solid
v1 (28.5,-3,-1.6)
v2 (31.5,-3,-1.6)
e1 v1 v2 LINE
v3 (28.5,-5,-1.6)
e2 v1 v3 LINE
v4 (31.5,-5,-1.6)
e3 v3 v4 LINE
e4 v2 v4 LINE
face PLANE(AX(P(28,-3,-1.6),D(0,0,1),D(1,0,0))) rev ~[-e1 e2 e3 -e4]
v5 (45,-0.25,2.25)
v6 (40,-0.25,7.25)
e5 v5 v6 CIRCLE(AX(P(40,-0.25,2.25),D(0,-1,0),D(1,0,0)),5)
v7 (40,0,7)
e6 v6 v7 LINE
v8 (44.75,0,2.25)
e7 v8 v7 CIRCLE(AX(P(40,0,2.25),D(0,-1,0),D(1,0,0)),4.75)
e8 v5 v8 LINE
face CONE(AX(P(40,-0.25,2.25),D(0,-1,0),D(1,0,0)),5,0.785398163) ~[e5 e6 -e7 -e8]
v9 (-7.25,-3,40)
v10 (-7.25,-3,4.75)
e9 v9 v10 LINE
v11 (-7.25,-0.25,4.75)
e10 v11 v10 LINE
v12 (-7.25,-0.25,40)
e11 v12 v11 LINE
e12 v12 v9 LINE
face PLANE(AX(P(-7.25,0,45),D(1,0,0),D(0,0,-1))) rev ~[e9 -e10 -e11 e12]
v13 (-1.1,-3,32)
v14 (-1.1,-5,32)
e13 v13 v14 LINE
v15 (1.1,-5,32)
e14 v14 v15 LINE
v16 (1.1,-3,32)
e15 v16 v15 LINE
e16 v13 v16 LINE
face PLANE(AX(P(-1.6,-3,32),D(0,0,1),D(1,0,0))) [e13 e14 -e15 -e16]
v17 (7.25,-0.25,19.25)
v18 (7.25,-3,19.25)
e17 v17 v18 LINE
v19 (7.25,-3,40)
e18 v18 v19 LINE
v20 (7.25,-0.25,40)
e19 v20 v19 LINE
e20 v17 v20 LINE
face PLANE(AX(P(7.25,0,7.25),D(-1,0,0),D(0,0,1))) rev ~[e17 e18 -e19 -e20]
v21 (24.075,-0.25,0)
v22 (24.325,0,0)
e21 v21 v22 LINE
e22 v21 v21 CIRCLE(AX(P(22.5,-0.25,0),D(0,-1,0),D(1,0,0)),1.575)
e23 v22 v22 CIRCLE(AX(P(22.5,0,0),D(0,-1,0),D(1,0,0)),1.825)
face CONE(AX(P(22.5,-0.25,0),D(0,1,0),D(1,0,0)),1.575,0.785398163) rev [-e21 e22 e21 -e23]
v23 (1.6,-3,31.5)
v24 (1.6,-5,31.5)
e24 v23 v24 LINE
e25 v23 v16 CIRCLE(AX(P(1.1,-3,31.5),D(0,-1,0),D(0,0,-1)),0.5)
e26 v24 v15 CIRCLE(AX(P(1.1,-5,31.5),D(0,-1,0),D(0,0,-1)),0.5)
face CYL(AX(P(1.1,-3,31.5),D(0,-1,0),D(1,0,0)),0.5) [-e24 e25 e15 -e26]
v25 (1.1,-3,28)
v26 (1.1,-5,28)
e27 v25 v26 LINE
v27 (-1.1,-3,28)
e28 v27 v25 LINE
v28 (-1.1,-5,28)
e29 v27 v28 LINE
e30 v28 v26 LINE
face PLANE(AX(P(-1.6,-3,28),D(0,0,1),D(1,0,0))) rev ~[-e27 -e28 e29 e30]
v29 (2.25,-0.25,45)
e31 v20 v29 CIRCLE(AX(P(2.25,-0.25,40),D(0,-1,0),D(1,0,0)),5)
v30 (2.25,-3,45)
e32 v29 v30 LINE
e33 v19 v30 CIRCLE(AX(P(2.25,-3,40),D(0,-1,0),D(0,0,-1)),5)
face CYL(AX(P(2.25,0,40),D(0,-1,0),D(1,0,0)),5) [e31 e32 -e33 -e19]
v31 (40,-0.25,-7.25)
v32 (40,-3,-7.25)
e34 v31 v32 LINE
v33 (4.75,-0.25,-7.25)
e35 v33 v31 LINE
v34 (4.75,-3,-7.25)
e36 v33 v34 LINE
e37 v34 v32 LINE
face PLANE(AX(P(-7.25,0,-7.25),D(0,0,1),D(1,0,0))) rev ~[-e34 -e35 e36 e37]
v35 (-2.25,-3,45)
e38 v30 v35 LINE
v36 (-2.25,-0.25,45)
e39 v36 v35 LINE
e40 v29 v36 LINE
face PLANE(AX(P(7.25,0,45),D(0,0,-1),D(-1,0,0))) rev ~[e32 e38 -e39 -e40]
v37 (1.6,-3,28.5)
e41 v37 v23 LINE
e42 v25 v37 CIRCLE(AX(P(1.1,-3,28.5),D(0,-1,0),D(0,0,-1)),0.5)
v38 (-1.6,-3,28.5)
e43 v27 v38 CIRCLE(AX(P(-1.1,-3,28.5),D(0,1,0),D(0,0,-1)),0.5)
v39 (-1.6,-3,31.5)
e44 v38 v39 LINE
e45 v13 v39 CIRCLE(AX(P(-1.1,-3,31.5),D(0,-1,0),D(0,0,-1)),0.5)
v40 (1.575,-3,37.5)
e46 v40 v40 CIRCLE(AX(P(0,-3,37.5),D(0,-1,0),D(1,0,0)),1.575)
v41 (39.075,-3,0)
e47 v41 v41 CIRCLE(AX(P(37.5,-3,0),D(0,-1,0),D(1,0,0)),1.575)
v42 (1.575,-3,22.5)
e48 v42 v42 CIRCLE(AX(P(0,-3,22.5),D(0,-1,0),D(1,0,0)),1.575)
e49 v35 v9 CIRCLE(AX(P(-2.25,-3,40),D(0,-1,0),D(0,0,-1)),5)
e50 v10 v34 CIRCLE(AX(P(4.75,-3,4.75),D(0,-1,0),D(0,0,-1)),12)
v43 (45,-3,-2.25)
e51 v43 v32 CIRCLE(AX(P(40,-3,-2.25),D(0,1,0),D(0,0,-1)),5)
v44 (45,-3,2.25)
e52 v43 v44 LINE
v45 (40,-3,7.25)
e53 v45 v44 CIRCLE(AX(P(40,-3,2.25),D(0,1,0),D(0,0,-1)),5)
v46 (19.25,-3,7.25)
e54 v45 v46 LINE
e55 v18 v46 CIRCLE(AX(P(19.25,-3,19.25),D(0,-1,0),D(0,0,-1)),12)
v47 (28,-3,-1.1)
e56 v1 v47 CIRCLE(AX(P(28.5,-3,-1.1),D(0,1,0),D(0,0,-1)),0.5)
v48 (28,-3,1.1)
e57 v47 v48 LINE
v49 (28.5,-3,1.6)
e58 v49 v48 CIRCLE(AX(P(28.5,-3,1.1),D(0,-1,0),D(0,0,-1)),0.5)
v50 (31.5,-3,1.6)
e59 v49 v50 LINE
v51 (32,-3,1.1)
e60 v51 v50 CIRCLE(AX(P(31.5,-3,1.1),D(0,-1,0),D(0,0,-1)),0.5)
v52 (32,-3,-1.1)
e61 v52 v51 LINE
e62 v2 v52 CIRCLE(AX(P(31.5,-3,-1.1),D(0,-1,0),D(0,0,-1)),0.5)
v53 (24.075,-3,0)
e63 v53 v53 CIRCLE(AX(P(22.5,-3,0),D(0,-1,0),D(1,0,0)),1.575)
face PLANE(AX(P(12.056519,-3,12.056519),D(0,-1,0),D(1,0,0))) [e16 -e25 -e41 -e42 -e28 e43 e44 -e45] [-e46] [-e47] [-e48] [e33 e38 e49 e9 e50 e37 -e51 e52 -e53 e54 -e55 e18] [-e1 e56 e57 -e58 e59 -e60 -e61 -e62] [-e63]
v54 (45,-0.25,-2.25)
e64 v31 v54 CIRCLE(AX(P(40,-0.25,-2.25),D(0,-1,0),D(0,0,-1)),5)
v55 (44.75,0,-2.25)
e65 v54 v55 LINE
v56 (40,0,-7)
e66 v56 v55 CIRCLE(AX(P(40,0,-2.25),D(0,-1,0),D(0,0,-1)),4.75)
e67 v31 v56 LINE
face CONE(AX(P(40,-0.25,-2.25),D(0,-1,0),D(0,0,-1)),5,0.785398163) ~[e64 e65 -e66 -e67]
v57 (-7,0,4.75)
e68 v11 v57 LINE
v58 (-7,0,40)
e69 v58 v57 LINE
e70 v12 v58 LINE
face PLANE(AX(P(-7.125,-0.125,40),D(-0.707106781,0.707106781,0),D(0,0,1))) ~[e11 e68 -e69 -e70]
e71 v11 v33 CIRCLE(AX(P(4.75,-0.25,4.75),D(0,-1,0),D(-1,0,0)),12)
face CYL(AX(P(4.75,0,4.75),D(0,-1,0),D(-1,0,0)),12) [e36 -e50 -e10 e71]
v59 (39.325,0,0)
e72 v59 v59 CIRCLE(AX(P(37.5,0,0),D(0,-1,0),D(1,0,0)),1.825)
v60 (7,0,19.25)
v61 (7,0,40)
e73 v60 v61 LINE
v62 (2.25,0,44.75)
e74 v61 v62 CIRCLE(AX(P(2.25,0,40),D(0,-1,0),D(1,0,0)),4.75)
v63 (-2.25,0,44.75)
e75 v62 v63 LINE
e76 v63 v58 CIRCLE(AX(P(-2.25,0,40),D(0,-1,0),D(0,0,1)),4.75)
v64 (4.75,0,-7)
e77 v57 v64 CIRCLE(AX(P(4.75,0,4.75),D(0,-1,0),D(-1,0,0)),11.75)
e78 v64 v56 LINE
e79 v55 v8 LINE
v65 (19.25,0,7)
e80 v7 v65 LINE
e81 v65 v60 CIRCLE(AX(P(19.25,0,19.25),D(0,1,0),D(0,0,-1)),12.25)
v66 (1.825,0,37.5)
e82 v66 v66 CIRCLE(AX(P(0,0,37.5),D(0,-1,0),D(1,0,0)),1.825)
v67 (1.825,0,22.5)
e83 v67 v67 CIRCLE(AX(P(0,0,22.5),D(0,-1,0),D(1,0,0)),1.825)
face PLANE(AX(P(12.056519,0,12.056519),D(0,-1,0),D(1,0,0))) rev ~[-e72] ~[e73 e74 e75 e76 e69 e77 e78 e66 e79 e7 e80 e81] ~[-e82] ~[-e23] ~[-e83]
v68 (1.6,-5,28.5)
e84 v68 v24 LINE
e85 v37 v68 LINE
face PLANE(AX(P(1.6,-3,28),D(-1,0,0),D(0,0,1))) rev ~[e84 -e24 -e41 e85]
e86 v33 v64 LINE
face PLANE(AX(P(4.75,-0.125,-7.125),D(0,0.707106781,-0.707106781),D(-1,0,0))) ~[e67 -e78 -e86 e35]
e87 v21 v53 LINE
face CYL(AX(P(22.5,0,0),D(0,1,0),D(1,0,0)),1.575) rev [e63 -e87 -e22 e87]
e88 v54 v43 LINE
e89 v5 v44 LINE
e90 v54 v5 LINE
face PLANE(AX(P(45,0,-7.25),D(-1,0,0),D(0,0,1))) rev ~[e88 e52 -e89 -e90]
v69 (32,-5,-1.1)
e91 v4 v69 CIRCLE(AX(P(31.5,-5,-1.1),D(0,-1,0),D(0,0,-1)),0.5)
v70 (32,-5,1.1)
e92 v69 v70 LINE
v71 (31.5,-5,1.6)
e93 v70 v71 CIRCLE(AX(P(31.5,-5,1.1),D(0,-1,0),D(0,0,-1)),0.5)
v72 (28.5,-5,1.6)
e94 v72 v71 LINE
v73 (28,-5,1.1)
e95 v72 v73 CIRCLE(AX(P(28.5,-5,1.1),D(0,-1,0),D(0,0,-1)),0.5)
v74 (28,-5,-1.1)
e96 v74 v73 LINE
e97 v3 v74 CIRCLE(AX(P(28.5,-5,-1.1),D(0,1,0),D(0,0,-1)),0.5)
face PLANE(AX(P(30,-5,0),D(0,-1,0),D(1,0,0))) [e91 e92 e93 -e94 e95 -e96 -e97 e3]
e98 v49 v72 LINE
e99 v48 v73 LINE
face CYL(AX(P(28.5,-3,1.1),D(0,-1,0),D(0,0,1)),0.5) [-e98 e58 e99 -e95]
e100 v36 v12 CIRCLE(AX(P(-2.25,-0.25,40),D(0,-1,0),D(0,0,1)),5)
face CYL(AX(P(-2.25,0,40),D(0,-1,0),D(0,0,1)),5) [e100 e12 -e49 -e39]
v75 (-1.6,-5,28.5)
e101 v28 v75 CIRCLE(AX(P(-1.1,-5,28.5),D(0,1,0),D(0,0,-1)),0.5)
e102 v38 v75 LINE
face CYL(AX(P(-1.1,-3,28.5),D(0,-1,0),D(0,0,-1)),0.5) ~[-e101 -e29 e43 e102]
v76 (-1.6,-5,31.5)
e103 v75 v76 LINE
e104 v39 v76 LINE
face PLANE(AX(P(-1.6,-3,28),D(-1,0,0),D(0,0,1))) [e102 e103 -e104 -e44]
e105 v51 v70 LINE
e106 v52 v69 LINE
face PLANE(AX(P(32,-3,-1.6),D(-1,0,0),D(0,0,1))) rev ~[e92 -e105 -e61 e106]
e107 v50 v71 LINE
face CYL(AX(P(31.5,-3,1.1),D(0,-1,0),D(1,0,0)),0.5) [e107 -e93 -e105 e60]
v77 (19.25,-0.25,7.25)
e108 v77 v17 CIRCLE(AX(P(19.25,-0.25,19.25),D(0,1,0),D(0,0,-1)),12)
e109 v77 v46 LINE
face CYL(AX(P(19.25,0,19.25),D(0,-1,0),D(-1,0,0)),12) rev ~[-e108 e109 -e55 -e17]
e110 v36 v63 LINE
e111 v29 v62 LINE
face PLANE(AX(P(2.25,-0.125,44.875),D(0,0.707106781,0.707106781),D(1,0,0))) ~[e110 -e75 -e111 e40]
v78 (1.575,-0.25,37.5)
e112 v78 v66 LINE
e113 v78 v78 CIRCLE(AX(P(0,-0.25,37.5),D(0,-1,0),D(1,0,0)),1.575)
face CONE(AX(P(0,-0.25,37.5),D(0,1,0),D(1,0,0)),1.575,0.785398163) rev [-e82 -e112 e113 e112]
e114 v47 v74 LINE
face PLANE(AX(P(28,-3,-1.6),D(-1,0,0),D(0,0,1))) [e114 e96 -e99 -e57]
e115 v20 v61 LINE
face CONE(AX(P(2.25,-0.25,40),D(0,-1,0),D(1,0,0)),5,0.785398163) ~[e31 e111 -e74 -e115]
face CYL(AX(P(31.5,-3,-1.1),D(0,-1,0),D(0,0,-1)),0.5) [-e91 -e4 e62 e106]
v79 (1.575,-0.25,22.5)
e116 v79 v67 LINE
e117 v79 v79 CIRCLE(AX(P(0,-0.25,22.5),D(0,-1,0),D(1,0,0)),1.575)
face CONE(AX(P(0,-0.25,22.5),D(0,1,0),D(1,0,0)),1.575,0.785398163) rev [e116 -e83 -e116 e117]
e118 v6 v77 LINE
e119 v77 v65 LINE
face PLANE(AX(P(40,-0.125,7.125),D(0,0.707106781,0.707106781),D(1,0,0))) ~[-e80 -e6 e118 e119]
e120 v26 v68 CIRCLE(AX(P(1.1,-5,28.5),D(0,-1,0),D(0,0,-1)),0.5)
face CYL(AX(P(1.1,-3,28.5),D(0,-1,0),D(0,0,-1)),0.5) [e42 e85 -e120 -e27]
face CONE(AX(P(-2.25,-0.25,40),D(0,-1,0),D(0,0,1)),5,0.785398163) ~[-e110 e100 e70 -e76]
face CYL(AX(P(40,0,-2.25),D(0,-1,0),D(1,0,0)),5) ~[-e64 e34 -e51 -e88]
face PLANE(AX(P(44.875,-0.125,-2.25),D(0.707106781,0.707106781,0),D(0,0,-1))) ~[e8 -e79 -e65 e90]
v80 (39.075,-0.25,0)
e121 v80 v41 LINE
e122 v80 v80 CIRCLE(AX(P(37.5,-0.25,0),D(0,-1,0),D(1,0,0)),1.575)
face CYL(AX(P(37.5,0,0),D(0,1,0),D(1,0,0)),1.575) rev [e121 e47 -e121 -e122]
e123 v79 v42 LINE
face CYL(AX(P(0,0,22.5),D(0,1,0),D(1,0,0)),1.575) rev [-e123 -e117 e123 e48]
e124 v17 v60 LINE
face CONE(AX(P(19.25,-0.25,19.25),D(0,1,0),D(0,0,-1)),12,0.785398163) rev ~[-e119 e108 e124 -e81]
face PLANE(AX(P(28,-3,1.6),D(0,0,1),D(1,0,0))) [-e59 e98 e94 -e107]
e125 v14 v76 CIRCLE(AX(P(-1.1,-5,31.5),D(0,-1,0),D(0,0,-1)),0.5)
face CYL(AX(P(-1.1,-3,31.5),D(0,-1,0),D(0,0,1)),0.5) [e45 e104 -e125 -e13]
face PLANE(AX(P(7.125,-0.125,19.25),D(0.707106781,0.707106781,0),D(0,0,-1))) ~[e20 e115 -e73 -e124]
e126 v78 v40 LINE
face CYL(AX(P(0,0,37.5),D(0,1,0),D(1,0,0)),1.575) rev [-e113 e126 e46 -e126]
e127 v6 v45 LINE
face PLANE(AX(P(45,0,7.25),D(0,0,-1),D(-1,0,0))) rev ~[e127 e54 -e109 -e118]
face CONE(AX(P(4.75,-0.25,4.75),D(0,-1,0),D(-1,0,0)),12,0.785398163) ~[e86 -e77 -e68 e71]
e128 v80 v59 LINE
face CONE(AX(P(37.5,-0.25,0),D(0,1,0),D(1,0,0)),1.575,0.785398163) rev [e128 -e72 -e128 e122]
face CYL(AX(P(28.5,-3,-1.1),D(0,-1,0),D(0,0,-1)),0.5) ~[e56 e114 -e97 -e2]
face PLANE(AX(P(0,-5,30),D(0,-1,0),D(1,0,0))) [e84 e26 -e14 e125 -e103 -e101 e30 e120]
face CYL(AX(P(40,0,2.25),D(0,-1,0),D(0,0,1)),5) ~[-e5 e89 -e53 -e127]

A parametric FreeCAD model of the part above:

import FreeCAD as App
import Part
import Sketcher

V = App.Vector


def edges_at(feature, points):
    """Names of the edges that pass closest to the given points."""
    edges = feature.Shape.Edges
    near = lambda p: min(range(len(edges)), key=lambda i: edges[i].distToShape(Part.Vertex(*p))[0])
    return sorted({f"Edge{near(p) + 1}" for p in points})


def add_polygon(sketch, points):
    """Adds a closed chain of lines whose ends are joined by coincident constraints."""
    first, n = sketch.GeometryCount, len(points)
    for a, b in zip(points, points[1:] + points[:1]):
        sketch.addGeometry(Part.LineSegment(App.Vector(*a, 0), App.Vector(*b, 0)), False)
    for i in range(n):
        sketch.addConstraint(Sketcher.Constraint("Coincident", first + i, 2, first + (i + 1) % n, 1))

doc = App.newDocument("Part")
body = doc.addObject("PartDesign::Body", "Body")

sketch1 = body.newObject("Sketcher::SketchObject", "Sketch")
sketch1.AttachmentSupport = (doc.getObject("XZ_Plane"), [""])
sketch1.MapMode = "FlatFace"
add_polygon(sketch1, [(7.2, 7.2), (7.2, 45), (-7.2, 45), (-7.2, -7.2), (45, -7.2), (45, 7.2)])
sketch1.addGeometry(Part.Circle(V(22.5, 0, 0), V(0, 0, 1), 1.6), False)
sketch1.addGeometry(Part.Circle(V(37.5, 0, 0), V(0, 0, 1), 1.6), False)
sketch1.addGeometry(Part.Circle(V(0, 22.5, 0), V(0, 0, 1), 1.6), False)
sketch1.addGeometry(Part.Circle(V(0, 37.5, 0), V(0, 0, 1), 1.6), False)
sketch1.addConstraint([
    Sketcher.Constraint("Vertical", 0),
    Sketcher.Constraint("Horizontal", 1),
    Sketcher.Constraint("Vertical", 2),
    Sketcher.Constraint("Horizontal", 3),
    Sketcher.Constraint("Vertical", 4),
    Sketcher.Constraint("Horizontal", 5),
    Sketcher.Constraint("Equal", 6, 7),
    Sketcher.Constraint("Equal", 7, 8),
    Sketcher.Constraint("Equal", 8, 9),
    Sketcher.Constraint("Symmetric", 2, 2, 5, 2, -1, 1),
    Sketcher.Constraint("PointOnObject", 6, 3, -1),
    Sketcher.Constraint("PointOnObject", 7, 3, -1),
    Sketcher.Constraint("PointOnObject", 8, 3, -2),
    Sketcher.Constraint("PointOnObject", 9, 3, -2),
    Sketcher.Constraint("Equal", 5, 0),
    Sketcher.Constraint("Equal", 3, 2),
    Sketcher.Constraint("Diameter", 6, 3.15),
    Sketcher.Constraint("DistanceX", 1, 2, 1, 1, 14.5),
    Sketcher.Constraint("DistanceY", -1, 1, 0, 2, 45.0),
    Sketcher.Constraint("DistanceX", 6, 3, 7, 3, 15.0),
    Sketcher.Constraint("DistanceY", 8, 3, 9, 3, 15.0),
    Sketcher.Constraint("DistanceX", -1, 1, 6, 3, 22.5),
    Sketcher.Constraint("DistanceY", -1, 1, 8, 3, 22.5),
])
pad1 = body.newObject("PartDesign::Pad", "Pad")
pad1.Profile = sketch1
pad1.Length = 3
doc.recompute()

fillet = body.newObject("PartDesign::Fillet", "Fillet")
fillet.Base = (pad1, edges_at(pad1, [
    (-7.25, -1.5, 45),
    (7.25, -1.5, 45),
    (45, -1.5, 7.25),
    (45, -1.5, -7.25),
]))
fillet.Radius = 5
doc.recompute()

fillet2 = body.newObject("PartDesign::Fillet", "Fillet001")
fillet2.Base = (fillet, edges_at(fillet, [(7.25, -1.5, 7.25), (-7.25, -1.5, -7.25)]))
fillet2.Radius = 12

sketch2 = body.newObject("Sketcher::SketchObject", "Sketch001")
sketch2.AttachmentSupport = (doc.getObject("XZ_Plane"), [""])
sketch2.MapMode = "FlatFace"
sketch2.AttachmentOffset = App.Placement(V(0, 0, 3), App.Rotation())
add_polygon(sketch2, [(-1.6, 32), (-1.6, 28), (1.6, 28), (1.6, 32)])
add_polygon(sketch2, [(28, 1.6), (28, -1.6), (32, -1.6), (32, 1.6)])
sketch2.addConstraint([
    Sketcher.Constraint("Vertical", 0),
    Sketcher.Constraint("Horizontal", 1),
    Sketcher.Constraint("Vertical", 2),
    Sketcher.Constraint("Horizontal", 3),
    Sketcher.Constraint("Vertical", 4),
    Sketcher.Constraint("Horizontal", 5),
    Sketcher.Constraint("Vertical", 6),
    Sketcher.Constraint("Horizontal", 7),
    Sketcher.Constraint("Equal", 7, 0),
    Sketcher.Constraint("Equal", 3, 4),
    Sketcher.Constraint("DistanceX", 5, 1, 5, 2, 4.0),
    Sketcher.Constraint("DistanceX", 1, 1, 1, 2, 3.2),
    Sketcher.Constraint("DistanceY", -1, 1, 0, 2, 28.0),
    Sketcher.Constraint("DistanceX", -1, 1, 4, 2, 28.0),
    Sketcher.Constraint("DistanceX", 0, 2, -1, 1, 1.6),
    Sketcher.Constraint("DistanceY", 4, 2, -1, 1, 1.6),
])
pad2 = body.newObject("PartDesign::Pad", "Pad001")
pad2.Profile = sketch2
pad2.Length = 2
doc.recompute()

fillet3 = body.newObject("PartDesign::Fillet", "Fillet002")
fillet3.Base = (pad2, edges_at(pad2, [
    (28, -4, -1.6),
    (32, -4, -1.6),
    (32, -4, 1.6),
    (28, -4, 1.6),
    (-1.6, -4, 28),
    (-1.6, -4, 32),
    (1.6, -4, 28),
    (1.6, -4, 32),
]))
fillet3.Radius = 0.5
doc.recompute()

chamfer = body.newObject("PartDesign::Chamfer", "Chamfer")
chamfer.Base = (fillet3, edges_at(fillet3, [
    (7.25, 0, 29.625),
    (10.765, 0, 10.765),
    (5.786, 0, 43.536),
    (29.625, 0, 7.25),
    (0, 0, 45),
    (43.536, 0, 5.786),
    (-5.786, 0, 43.536),
    (45, 0, 0),
    (-7.25, 0, 22.375),
    (43.536, 0, -5.786),
    (-3.735, 0, -3.735),
    (22.375, 0, -7.25),
    (20.925, 0, 0),
    (35.925, 0, 0),
    (-1.575, 0, 22.5),
    (-1.575, 0, 37.5),
]))
chamfer.Size = 0.25

doc.recompute()
